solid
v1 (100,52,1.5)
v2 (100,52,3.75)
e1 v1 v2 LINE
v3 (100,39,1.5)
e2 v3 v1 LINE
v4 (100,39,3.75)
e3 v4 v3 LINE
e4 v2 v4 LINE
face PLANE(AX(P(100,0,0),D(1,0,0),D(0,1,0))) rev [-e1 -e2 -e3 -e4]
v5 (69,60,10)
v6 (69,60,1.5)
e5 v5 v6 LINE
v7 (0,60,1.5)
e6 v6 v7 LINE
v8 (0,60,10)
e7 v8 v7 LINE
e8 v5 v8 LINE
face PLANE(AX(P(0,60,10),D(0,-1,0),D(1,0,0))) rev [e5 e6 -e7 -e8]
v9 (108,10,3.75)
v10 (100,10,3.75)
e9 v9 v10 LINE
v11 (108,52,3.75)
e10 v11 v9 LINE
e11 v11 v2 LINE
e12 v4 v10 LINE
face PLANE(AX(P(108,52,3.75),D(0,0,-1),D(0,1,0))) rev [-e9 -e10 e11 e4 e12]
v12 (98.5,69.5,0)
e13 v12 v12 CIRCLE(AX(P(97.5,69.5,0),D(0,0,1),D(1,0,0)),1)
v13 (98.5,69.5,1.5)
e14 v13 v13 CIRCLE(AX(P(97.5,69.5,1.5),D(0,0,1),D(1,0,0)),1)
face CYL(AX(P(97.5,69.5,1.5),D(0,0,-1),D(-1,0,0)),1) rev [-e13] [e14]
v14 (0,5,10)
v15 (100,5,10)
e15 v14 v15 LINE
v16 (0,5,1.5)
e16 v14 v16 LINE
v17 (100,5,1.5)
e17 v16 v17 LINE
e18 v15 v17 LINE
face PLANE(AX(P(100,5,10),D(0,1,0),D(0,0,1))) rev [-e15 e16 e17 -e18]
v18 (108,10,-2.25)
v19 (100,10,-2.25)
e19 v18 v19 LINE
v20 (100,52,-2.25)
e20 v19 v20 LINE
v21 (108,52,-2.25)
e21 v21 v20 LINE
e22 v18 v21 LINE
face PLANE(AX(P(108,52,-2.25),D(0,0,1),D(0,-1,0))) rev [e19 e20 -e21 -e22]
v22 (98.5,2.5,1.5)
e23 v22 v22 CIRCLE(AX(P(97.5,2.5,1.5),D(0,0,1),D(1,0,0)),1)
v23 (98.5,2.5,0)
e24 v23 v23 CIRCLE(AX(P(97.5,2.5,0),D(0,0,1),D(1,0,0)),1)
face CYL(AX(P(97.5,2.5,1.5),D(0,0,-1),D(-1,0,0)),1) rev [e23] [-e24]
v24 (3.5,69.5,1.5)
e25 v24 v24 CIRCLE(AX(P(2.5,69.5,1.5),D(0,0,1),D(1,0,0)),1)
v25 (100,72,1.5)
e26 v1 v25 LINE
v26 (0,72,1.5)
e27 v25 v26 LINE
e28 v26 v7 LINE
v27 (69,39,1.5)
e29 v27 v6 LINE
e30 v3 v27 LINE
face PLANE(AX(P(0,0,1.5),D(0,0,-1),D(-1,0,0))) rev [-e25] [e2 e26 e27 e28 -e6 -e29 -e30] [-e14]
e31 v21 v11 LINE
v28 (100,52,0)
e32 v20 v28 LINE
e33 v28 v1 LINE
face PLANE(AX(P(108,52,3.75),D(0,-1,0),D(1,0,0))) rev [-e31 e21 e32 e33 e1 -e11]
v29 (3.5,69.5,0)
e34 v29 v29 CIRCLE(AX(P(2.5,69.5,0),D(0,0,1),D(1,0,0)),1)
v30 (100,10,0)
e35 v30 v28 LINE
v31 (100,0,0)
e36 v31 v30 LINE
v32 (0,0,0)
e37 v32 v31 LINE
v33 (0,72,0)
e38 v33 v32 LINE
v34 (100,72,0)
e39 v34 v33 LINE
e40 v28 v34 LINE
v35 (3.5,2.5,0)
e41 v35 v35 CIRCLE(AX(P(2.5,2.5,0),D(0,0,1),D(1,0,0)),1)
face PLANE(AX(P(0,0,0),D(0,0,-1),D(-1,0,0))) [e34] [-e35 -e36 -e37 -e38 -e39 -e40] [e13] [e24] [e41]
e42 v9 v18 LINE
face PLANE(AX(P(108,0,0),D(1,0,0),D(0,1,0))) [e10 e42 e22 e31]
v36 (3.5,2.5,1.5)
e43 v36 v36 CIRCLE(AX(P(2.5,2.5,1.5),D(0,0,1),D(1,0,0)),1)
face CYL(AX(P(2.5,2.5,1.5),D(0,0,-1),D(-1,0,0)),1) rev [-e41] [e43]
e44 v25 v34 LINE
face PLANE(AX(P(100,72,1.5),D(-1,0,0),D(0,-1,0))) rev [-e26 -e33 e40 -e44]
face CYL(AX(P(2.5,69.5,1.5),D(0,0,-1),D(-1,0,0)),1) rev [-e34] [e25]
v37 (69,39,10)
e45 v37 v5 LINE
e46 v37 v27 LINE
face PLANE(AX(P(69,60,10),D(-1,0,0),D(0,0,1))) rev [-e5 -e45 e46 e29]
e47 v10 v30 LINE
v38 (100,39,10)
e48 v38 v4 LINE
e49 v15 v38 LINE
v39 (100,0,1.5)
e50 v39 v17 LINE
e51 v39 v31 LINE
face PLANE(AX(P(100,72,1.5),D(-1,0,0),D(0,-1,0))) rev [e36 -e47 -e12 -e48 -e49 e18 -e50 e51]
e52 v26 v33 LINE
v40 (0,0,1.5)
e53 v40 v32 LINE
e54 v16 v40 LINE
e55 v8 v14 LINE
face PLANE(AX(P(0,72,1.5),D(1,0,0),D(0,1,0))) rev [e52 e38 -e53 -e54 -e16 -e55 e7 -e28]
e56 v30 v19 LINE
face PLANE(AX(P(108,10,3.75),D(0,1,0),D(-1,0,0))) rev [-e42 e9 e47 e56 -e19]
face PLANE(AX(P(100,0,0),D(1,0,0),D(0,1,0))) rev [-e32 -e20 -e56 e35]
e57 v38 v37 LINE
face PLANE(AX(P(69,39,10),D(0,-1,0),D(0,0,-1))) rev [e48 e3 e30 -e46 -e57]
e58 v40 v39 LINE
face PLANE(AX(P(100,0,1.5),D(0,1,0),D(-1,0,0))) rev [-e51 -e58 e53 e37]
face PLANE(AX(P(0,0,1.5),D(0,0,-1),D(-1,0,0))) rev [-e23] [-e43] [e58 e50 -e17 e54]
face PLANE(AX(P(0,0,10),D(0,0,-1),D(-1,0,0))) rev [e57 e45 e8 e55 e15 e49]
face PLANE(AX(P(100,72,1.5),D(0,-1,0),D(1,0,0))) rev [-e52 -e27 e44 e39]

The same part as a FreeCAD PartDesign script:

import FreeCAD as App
import Part
import Sketcher
Q = App.Units.Quantity


def add_polygon(sketch, points):
    """Adds a closed chain of lines whose ends are joined by coincident constraints."""
    first, n = sketch.GeometryCount, len(points)
    for a, b in zip(points, points[1:] + points[:1]):
        sketch.addGeometry(Part.LineSegment(App.Vector(*a, 0), App.Vector(*b, 0)), False)
    for i in range(n):
        sketch.addConstraint(Sketcher.Constraint("Coincident", first + i, 2, first + (i + 1) % n, 1))

doc = App.newDocument("Part")
body = doc.addObject("PartDesign::Body", "Body")

# Sketch on XY plane
sketch1 = body.newObject("Sketcher::SketchObject", "Sketch")
sketch1.AttachmentSupport = (doc.getObject("XY_Plane"), [""])
sketch1.MapMode = "FlatFace"
add_polygon(sketch1, [(0, 72), (0, 0), (100, 0), (100, 72)])  # lines 0-3
sketch1.addGeometry(Part.Circle(App.Vector(2.5, 2.5, 0), App.Vector(0, 0, 1), 1), False)  # 4
sketch1.addGeometry(Part.Circle(App.Vector(97.5, 2.5, 0), App.Vector(0, 0, 1), 1), False)  # 5
sketch1.addGeometry(Part.Circle(App.Vector(2.5, 69.5, 0), App.Vector(0, 0, 1), 1), False)  # 6
sketch1.addGeometry(Part.Circle(App.Vector(97.5, 69.5, 0), App.Vector(0, 0, 1), 1), False)  # 7
sketch1.addConstraint(Sketcher.Constraint("Vertical", 0))
sketch1.addConstraint(Sketcher.Constraint("Horizontal", 1))
sketch1.addConstraint(Sketcher.Constraint("Vertical", 2))
sketch1.addConstraint(Sketcher.Constraint("Horizontal", 3))
sketch1.addConstraint(Sketcher.Constraint("Coincident", 0, 2, -1, 1))
sketch1.addConstraint(Sketcher.Constraint("Equal", 4, 5))
sketch1.addConstraint(Sketcher.Constraint("Equal", 5, 6))
sketch1.addConstraint(Sketcher.Constraint("Equal", 6, 7))
sketch1.addConstraint(Sketcher.Constraint("Horizontal", 4, 3, 5, 3))
sketch1.addConstraint(Sketcher.Constraint("Horizontal", 6, 3, 7, 3))
sketch1.addConstraint(Sketcher.Constraint("Vertical", 4, 3, 6, 3))
sketch1.addConstraint(Sketcher.Constraint("Vertical", 5, 3, 7, 3))
sketch1.addConstraint(Sketcher.Constraint("Diameter", 4, Q("2 mm")))
sketch1.addConstraint(Sketcher.Constraint("DistanceX", 1, 1, 1, 2, Q("100 mm")))
sketch1.addConstraint(Sketcher.Constraint("DistanceY", 0, 2, 0, 1, Q("72 mm")))
sketch1.addConstraint(Sketcher.Constraint("DistanceX", 4, 3, 5, 3, Q("95 mm")))
sketch1.addConstraint(Sketcher.Constraint("DistanceY", 4, 3, 6, 3, Q("67 mm")))
sketch1.addConstraint(Sketcher.Constraint("DistanceX", -1, 1, 4, 3, Q("2.5 mm")))
sketch1.addConstraint(Sketcher.Constraint("DistanceY", -1, 1, 4, 3, Q("2.5 mm")))
pad1 = body.newObject("PartDesign::Pad", "Pad")
pad1.Profile = sketch1
pad1.Length = 1.5

# Sketch on XY plane
sketch2 = body.newObject("Sketcher::SketchObject", "Sketch001")
sketch2.AttachmentSupport = (doc.getObject("XY_Plane"), [""])
sketch2.MapMode = "FlatFace"
sketch2.AttachmentOffset = App.Placement(App.Vector(0, 0, 1.5), App.Rotation())
add_polygon(sketch2, [(69, 60), (0, 60), (0, 5), (100, 5), (100, 39), (69, 39)])  # lines 0-5
sketch2.addConstraint(Sketcher.Constraint("Horizontal", 0))
sketch2.addConstraint(Sketcher.Constraint("Vertical", 1))
sketch2.addConstraint(Sketcher.Constraint("Horizontal", 2))
sketch2.addConstraint(Sketcher.Constraint("Vertical", 3))
sketch2.addConstraint(Sketcher.Constraint("Horizontal", 4))
sketch2.addConstraint(Sketcher.Constraint("Vertical", 5))
sketch2.addConstraint(Sketcher.Constraint("PointOnObject", 0, 2, -2))
sketch2.addConstraint(Sketcher.Constraint("DistanceX", 0, 2, 0, 1, Q("69 mm")))
sketch2.addConstraint(Sketcher.Constraint("DistanceX", 2, 1, 2, 2, Q("100 mm")))
sketch2.addConstraint(Sketcher.Constraint("DistanceY", 1, 2, 1, 1, Q("55 mm")))
sketch2.addConstraint(Sketcher.Constraint("DistanceY", 3, 1, 3, 2, Q("34 mm")))
sketch2.addConstraint(Sketcher.Constraint("DistanceY", -1, 1, 0, 2, Q("60 mm")))
pad2 = body.newObject("PartDesign::Pad", "Pad001")
pad2.Profile = sketch2
pad2.Length = 8.5

# Sketch on YZ plane
sketch3 = body.newObject("Sketcher::SketchObject", "Sketch002")
sketch3.AttachmentSupport = (doc.getObject("YZ_Plane"), [""])
sketch3.MapMode = "FlatFace"
sketch3.AttachmentOffset = App.Placement(App.Vector(0, 0, 100), App.Rotation())
add_polygon(sketch3, [(52, 4), (10, 4), (10, -2), (52, -2)])  # lines 0-3
sketch3.addConstraint(Sketcher.Constraint("Horizontal", 0))
sketch3.addConstraint(Sketcher.Constraint("Vertical", 1))
sketch3.addConstraint(Sketcher.Constraint("Horizontal", 2))
sketch3.addConstraint(Sketcher.Constraint("Vertical", 3))
sketch3.addConstraint(Sketcher.Constraint("DistanceX", 0, 2, 0, 1, Q("42 mm")))
sketch3.addConstraint(Sketcher.Constraint("DistanceY", 1, 2, 1, 1, Q("6 mm")))
sketch3.addConstraint(Sketcher.Constraint("DistanceX", -1, 1, 0, 2, Q("10 mm")))
sketch3.addConstraint(Sketcher.Constraint("DistanceY", -1, 1, 0, 2, Q("3.75 mm")))
pad3 = body.newObject("PartDesign::Pad", "Pad002")
pad3.Profile = sketch3
pad3.Length = 8

doc.recompute()
